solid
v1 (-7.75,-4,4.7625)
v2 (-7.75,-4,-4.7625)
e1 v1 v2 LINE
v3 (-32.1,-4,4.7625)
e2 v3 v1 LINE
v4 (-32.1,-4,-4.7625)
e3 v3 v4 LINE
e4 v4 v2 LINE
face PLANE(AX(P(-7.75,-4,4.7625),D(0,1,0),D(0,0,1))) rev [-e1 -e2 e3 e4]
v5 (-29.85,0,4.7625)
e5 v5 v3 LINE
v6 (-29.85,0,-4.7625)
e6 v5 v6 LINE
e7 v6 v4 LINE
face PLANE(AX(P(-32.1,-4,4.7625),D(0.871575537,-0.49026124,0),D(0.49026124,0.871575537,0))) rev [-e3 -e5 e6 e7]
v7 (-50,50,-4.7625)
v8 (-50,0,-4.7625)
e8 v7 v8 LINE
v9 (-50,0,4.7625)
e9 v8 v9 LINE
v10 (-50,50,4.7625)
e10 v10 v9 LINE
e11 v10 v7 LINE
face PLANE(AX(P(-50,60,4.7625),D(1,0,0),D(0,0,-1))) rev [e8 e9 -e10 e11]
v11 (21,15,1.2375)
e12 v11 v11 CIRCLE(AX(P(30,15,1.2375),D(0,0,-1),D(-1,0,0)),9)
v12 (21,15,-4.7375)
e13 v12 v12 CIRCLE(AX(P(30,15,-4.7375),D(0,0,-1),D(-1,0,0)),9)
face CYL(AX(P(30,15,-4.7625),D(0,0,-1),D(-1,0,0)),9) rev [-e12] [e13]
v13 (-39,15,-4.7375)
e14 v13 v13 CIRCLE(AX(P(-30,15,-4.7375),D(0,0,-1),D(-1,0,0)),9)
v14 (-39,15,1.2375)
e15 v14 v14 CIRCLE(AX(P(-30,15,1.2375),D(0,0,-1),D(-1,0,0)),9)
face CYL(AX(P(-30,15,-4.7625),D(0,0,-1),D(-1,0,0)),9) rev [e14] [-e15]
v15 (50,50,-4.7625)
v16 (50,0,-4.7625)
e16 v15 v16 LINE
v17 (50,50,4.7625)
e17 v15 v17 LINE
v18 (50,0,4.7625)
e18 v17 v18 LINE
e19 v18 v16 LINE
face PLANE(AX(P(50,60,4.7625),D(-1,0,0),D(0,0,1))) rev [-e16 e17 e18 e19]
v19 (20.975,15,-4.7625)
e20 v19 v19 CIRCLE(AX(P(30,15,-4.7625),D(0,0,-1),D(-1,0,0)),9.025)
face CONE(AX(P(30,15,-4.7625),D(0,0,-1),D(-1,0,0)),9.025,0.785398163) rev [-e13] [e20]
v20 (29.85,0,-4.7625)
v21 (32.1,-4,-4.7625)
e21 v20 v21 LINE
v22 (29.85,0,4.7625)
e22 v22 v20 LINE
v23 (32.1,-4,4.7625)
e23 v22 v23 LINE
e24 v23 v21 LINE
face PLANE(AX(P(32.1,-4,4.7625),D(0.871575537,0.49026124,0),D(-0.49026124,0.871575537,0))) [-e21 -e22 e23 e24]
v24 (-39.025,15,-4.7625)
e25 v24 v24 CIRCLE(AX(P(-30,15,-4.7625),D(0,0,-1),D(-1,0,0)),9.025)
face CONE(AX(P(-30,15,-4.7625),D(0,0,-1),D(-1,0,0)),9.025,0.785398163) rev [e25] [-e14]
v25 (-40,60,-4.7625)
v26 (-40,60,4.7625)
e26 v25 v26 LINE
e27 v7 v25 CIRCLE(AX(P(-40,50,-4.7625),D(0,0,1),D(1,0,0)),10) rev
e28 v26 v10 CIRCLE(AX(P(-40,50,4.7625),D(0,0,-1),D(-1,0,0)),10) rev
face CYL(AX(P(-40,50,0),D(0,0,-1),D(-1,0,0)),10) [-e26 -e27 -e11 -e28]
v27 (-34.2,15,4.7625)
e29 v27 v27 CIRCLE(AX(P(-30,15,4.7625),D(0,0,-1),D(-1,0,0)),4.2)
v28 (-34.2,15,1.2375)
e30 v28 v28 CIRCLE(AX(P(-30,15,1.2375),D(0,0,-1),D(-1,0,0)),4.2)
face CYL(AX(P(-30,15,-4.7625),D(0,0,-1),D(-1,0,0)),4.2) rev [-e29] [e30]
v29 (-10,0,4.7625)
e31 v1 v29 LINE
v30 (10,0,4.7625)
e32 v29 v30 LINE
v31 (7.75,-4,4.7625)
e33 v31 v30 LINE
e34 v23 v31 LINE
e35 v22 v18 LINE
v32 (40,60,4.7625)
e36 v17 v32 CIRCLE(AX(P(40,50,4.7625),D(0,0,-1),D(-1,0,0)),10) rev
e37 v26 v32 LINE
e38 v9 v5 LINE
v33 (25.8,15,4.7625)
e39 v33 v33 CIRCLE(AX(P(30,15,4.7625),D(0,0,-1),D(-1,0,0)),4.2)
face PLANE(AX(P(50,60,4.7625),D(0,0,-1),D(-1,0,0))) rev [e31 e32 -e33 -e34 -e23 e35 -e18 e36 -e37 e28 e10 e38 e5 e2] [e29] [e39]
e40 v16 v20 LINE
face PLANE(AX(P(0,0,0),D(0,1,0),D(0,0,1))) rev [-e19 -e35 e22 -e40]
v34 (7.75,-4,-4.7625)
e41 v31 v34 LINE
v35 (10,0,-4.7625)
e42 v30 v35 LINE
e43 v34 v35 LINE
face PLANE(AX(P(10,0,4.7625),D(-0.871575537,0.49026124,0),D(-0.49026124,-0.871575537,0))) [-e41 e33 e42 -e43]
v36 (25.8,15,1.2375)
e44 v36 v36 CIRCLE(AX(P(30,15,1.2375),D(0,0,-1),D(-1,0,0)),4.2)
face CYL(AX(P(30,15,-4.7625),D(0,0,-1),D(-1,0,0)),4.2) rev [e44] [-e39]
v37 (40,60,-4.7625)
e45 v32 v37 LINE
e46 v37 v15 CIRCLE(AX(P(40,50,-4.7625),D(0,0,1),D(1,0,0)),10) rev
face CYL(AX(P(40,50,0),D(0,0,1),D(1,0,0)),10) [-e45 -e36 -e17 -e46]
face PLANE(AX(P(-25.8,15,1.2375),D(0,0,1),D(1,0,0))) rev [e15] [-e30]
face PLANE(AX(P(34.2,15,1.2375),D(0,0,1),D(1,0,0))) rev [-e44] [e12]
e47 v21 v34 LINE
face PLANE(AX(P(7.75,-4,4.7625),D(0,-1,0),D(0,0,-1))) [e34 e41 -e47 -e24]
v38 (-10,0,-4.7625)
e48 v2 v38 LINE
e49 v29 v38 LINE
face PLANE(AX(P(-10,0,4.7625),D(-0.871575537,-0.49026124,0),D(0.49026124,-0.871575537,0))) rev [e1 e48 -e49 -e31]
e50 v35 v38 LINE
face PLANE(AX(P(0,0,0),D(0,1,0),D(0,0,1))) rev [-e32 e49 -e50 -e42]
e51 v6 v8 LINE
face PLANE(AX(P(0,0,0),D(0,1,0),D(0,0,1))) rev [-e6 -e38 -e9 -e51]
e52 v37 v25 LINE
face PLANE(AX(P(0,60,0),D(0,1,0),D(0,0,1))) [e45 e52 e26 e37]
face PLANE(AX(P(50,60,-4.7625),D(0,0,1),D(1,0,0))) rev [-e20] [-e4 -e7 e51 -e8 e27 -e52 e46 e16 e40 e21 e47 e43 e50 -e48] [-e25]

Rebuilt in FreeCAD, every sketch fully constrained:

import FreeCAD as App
import Part
import Sketcher
Q = App.Units.Quantity


def edges_at(feature, points):
    """Names of the edges that pass closest to the given points."""
    edges = feature.Shape.Edges
    near = lambda p: min(range(len(edges)), key=lambda i: edges[i].distToShape(Part.Vertex(*p))[0])
    return sorted({f"Edge{near(p) + 1}" for p in points})


def add_polygon(sketch, points):
    """Adds a closed chain of lines whose ends are joined by coincident constraints."""
    first, n = sketch.GeometryCount, len(points)
    for a, b in zip(points, points[1:] + points[:1]):
        sketch.addGeometry(Part.LineSegment(App.Vector(*a, 0), App.Vector(*b, 0)), False)
    for i in range(n):
        sketch.addConstraint(Sketcher.Constraint("Coincident", first + i, 2, first + (i + 1) % n, 1))

doc = App.newDocument("Part")
body = doc.addObject("PartDesign::Body", "Body")

# Sketch on XZ plane
sketch1 = body.newObject("Sketcher::SketchObject", "Sketch")
sketch1.AttachmentSupport = (doc.getObject("XZ_Plane"), [""])
sketch1.MapMode = "FlatFace"
add_polygon(sketch1, [(-50, -5), (-50, 5), (50, 5), (50, -5)])  # lines 0-3
sketch1.addConstraint([
    Sketcher.Constraint("Vertical", 0),
    Sketcher.Constraint("Horizontal", 1),
    Sketcher.Constraint("Vertical", 2),
    Sketcher.Constraint("Horizontal", 3),
    Sketcher.Constraint("Symmetric", 0, 2, 2, 2, -1, 1),
    Sketcher.Constraint("DistanceX", 1, 1, 1, 2, Q("100 mm")),
    Sketcher.Constraint("DistanceY", 0, 1, 0, 2, Q("9.525 mm")),
])
pad1 = body.newObject("PartDesign::Pad", "Pad")
pad1.Profile = sketch1
pad1.Length = 60
pad1.Reversed = True

# Sketch on XY plane
sketch2 = body.newObject("Sketcher::SketchObject", "Sketch001")
sketch2.AttachmentSupport = (doc.getObject("XY_Plane"), [""])
sketch2.MapMode = "FlatFace"
add_polygon(sketch2, [(-10, 0), (-29.9, 0), (-32.1, -4), (-7.8, -4)])  # lines 0-3
sketch2.addConstraint([
    Sketcher.Constraint("Horizontal", 0),
    Sketcher.Constraint("Horizontal", 2),
    Sketcher.Constraint("PointOnObject", 0, 2, -1),
    Sketcher.Constraint("Equal", 1, 3),
    Sketcher.Constraint("DistanceY", 1, 2, -1, 1, Q("4 mm")),
    Sketcher.Constraint("DistanceX", 3, 2, -1, 1, Q("10 mm")),
    Sketcher.Constraint("DistanceX", 0, 2, 0, 1, Q("19.85 mm")),
    Sketcher.Constraint("DistanceX", 2, 1, 2, 2, Q("24.35 mm")),
])
pad2 = body.newObject("PartDesign::Pad", "Pad001")
pad2.Profile = sketch2
pad2.Length = 9.525
pad2.Midplane = True
doc.recompute()

mirrored = body.newObject("PartDesign::Mirrored", "Mirrored")
mirrored.Originals = [pad2]
mirrored.MirrorPlane = (doc.getObject("YZ_Plane"), [""])
body.Tip = mirrored
doc.recompute()

fillet = body.newObject("PartDesign::Fillet", "Fillet")
fillet.Base = (mirrored, edges_at(mirrored, [(50, 60, 0), (-50, 60, 0)]))
fillet.Radius = 10

# Sketch on XY plane
sketch3 = body.newObject("Sketcher::SketchObject", "Sketch002")
sketch3.AttachmentSupport = (doc.getObject("XY_Plane"), [""])
sketch3.MapMode = "FlatFace"
sketch3.AttachmentOffset = App.Placement(App.Vector(0, 0, 4.7625), App.Rotation())
sketch3.addGeometry([
    Part.Circle(App.Vector(-30, 15, 0), App.Vector(0, 0, 1), 4),
    Part.Circle(App.Vector(30, 15, 0), App.Vector(0, 0, 1), 4),
], False)
sketch3.addConstraint([
    Sketcher.Constraint("Equal", 0, 1),
    Sketcher.Constraint("Symmetric", 0, 3, 1, 3, -2),
    Sketcher.Constraint("Diameter", 0, Q("8 mm")),
    Sketcher.Constraint("DistanceX", 0, 3, -1, 1, Q("30 mm")),
    Sketcher.Constraint("DistanceY", -1, 1, 0, 3, Q("15 mm")),
])
pocket1 = body.newObject("PartDesign::Pocket", "Pocket")
pocket1.Profile = sketch3
pocket1.Type = "ThroughAll"

# Sketch on YZ plane
sketch4 = body.newObject("Sketcher::SketchObject", "Sketch003")
sketch4.AttachmentSupport = (doc.getObject("YZ_Plane"), [""])
sketch4.MapMode = "FlatFace"
sketch4.AttachmentOffset = App.Placement(App.Vector(0, 0, 30), App.Rotation())
add_polygon(sketch4, [(15, 17.811), (15, -4.763), (24.025, -4.763), (24, -4.737), (24, 1.238), (19.2, 1.238), (19.2, 15.287)])  # lines 0-6
sketch4.addGeometry(Part.LineSegment(App.Vector(15, -4.763, 0), App.Vector(15, 17.811, 0)), True)  # axis
sketch4.addConstraint([
    Sketcher.Constraint("Vertical", 0),
    Sketcher.Constraint("Horizontal", 1),
    Sketcher.Constraint("Vertical", 3),
    Sketcher.Constraint("Horizontal", 4),
    Sketcher.Constraint("Vertical", 5),
    Sketcher.Constraint("Vertical", 7),
    Sketcher.Constraint("Coincident", 7, 1, 0, 2),
    Sketcher.Constraint("Equal", 0, 7),
    Sketcher.Constraint("Angle", 2, Q("135 deg")),
    Sketcher.Constraint("Angle", 6, Q("149 deg")),
    Sketcher.Constraint("DistanceX", 4, 2, 4, 1, Q("4.8 mm")),
    Sketcher.Constraint("DistanceX", -1, 1, 0, 2, Q("15 mm")),
    Sketcher.Constraint("DistanceX", -1, 1, 2, 2, Q("24 mm")),
    Sketcher.Constraint("DistanceY", 1, 2, 3, 2, Q("6 mm")),
    Sketcher.Constraint("DistanceY", 5, 1, 5, 2, Q("14.05 mm")),
    Sketcher.Constraint("DistanceX", 1, 1, 1, 2, Q("9.025 mm")),
    Sketcher.Constraint("DistanceY", 0, 2, -1, 1, Q("4.7625 mm")),
])
groove = body.newObject("PartDesign::Groove", "Groove")
groove.Profile = sketch4
groove.ReferenceAxis = (sketch4, ["Axis0"])
groove.Angle = 360
doc.recompute()

linearpattern = body.newObject("PartDesign::LinearPattern", "LinearPattern")
linearpattern.Originals = [groove]
linearpattern.Direction = (doc.getObject("X_Axis"), [""])
linearpattern.Mode = "offset"
linearpattern.Offset = 60
linearpattern.Occurrences = 2
linearpattern.Reversed = True
body.Tip = linearpattern

doc.recompute()
